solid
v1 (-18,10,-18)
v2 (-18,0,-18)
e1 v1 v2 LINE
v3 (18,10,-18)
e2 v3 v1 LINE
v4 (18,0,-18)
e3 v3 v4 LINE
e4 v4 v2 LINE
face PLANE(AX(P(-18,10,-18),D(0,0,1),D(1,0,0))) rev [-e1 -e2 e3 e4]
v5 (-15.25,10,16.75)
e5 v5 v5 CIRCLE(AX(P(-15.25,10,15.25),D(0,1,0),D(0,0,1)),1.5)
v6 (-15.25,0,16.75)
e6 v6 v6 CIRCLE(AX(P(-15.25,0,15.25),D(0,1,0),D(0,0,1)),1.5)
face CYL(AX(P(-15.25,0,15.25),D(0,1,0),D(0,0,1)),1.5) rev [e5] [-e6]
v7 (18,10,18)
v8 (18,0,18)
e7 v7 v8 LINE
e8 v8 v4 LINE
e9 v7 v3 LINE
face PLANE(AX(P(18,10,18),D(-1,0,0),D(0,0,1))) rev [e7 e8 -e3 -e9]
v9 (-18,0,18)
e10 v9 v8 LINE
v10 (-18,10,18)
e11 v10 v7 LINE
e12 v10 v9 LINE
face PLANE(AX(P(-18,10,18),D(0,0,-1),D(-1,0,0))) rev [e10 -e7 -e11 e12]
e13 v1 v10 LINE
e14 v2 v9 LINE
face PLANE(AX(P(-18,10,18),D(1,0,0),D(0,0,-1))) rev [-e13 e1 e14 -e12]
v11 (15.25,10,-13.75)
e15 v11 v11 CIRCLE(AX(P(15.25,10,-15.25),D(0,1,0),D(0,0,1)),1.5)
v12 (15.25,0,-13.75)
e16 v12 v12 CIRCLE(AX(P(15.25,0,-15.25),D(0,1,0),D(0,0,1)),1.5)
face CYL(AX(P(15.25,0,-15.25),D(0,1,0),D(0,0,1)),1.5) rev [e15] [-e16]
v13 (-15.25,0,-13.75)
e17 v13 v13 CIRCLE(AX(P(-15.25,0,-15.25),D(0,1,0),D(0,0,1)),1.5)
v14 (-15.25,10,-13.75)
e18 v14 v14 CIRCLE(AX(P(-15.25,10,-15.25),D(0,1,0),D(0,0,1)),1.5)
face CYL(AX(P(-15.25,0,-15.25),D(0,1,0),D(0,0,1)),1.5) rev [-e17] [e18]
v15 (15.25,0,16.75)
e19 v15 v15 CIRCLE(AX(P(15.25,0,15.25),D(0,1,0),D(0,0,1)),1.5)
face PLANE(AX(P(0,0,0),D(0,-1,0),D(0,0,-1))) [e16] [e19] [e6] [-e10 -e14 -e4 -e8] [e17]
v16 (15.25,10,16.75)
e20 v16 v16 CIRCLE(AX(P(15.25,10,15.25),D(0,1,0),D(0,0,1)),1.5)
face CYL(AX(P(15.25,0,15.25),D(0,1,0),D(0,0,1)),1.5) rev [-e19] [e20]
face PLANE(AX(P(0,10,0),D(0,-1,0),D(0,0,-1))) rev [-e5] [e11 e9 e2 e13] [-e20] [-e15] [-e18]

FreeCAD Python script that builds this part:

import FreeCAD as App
import Part
import Sketcher
from FreeCAD import Vector
Q = App.Units.Quantity


def add_polygon(sketch, points):
    """Adds a closed chain of lines whose ends are joined by coincident constraints."""
    first, n = sketch.GeometryCount, len(points)
    for a, b in zip(points, points[1:] + points[:1]):
        sketch.addGeometry(Part.LineSegment(App.Vector(*a, 0), App.Vector(*b, 0)), False)
    for i in range(n):
        sketch.addConstraint(Sketcher.Constraint("Coincident", first + i, 2, first + (i + 1) % n, 1))

doc = App.newDocument("Part")
body = doc.addObject("PartDesign::Body", "Body")

# Sketch on XZ plane
sketch1 = doc.addObject("Sketcher::SketchObject", "Sketch")
body.addObject(sketch1)
sketch1.AttachmentSupport = (doc.XZ_Plane, [""])
sketch1.MapMode = "FlatFace"
add_polygon(sketch1, [(-18, -18), (-18, 18), (18, 18), (18, -18)])  # lines 0-3
sketch1.addConstraint([
    Sketcher.Constraint("Vertical", 0),
    Sketcher.Constraint("Horizontal", 1),
    Sketcher.Constraint("Vertical", 2),
    Sketcher.Constraint("Horizontal", 3),
    Sketcher.Constraint("Symmetric", 0, 2, 2, 2, -1, 1),
    Sketcher.Constraint("Equal", 3, 0),
    Sketcher.Constraint("DistanceX", 1, 1, 1, 2, Q("36 mm")),
])
pad1 = doc.addObject("PartDesign::Pad", "Pad")
body.addObject(pad1)
pad1.Profile = sketch1
pad1.Length = 10
pad1.Reversed = True

# Sketch on XZ plane
sketch2 = doc.addObject("Sketcher::SketchObject", "Sketch001")
body.addObject(sketch2)
sketch2.AttachmentSupport = (doc.XZ_Plane, [""])
sketch2.MapMode = "FlatFace"
sketch2.AttachmentOffset = App.Placement(Vector(0, 0, -10), App.Rotation())
sketch2.addGeometry([
    Part.Circle(Vector(-15.25, -15.25, 0), Vector(0, 0, 1), 1.5),
    Part.Circle(Vector(15.25, -15.25, 0), Vector(0, 0, 1), 1.5),
    Part.Circle(Vector(15.25, 15.25, 0), Vector(0, 0, 1), 1.5),
    Part.Circle(Vector(-15.25, 15.25, 0), Vector(0, 0, 1), 1.5),
], False)
sketch2.addConstraint([
    Sketcher.Constraint("Equal", 0, 1),
    Sketcher.Constraint("Equal", 1, 2),
    Sketcher.Constraint("Equal", 2, 3),
    Sketcher.Constraint("Symmetric", 0, 3, 2, 3, -1, 1),
    Sketcher.Constraint("Symmetric", 1, 3, 3, 3, -1, 1),
    Sketcher.Constraint("Symmetric", 0, 3, 1, 3, -2),
    Sketcher.Constraint("Diameter", 0, Q("3 mm")),
    Sketcher.Constraint("DistanceX", 0, 3, 1, 3, Q("30.5 mm")),
    Sketcher.Constraint("DistanceY", 1, 3, 2, 3, Q("30.5 mm")),
])
pocket1 = doc.addObject("PartDesign::Pocket", "Pocket")
body.addObject(pocket1)
pocket1.Profile = sketch2
pocket1.Length = 10
pocket1.Reversed = True

doc.recompute()
